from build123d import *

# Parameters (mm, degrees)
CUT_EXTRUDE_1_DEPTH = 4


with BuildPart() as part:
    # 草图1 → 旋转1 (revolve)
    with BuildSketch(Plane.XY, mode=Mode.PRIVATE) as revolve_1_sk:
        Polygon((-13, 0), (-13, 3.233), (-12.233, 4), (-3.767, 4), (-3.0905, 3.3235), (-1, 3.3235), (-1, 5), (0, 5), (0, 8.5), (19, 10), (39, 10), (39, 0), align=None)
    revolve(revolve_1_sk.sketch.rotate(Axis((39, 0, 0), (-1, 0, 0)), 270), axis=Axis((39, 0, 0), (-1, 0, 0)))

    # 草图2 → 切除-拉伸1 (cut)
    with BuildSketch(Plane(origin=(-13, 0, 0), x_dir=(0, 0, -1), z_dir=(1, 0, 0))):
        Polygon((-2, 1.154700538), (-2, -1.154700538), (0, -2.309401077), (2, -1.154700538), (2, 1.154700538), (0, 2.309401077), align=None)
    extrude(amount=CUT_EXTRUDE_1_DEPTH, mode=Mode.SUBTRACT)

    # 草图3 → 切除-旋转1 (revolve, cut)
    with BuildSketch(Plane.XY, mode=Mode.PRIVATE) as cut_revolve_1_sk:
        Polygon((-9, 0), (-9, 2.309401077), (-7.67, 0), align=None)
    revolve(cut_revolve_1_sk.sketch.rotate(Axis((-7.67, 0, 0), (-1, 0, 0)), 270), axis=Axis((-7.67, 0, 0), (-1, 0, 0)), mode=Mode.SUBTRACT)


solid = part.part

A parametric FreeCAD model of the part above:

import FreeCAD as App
import Part
import Sketcher

V = App.Vector
Q = App.Units.Quantity

doc = App.newDocument("Part")
params = doc.addObject("Spreadsheet::Sheet", "Params")
for row, (alias, value) in enumerate([
    ("sketch1_width", "52 mm"),
    ("sketch1_width2", "20 mm"),
    ("sketch1_width3", "1 mm"),
    ("sketch1_height", "10 mm"),
    ("sketch1_height2", "3.5 mm"),
    ("revolution_angle", "360 deg"),
    ("pocket1_length", "4 mm"),
    ("sketch3_width", "1.33 mm"),
    ("groove_angle", "360 deg"),
], start=1):
    params.set(f"A{row}", alias)
    params.set(f"B{row}", "=" + value)
    params.setAlias(f"B{row}", alias)

body = doc.addObject("PartDesign::Body", "Body")

# Sketch on XY plane
sketch1 = doc.addObject("Sketcher::SketchObject", "Sketch")
body.addObject(sketch1)
sketch1.AttachmentSupport = (doc.XY_Plane, [""])
sketch1.MapMode = "FlatFace"
sketch1.addGeometry([
    Part.LineSegment(V(-13, 3.2, 0), V(-13, 0, 0)),  # 0
    Part.LineSegment(V(-13, 0, 0), V(39, 0, 0)),  # 1
    Part.LineSegment(V(39, 0, 0), V(39, 10, 0)),  # 2
    Part.LineSegment(V(39, 10, 0), V(19, 10, 0)),  # 3
    Part.LineSegment(V(19, 10, 0), V(0, 8.5, 0)),  # 4
    Part.LineSegment(V(0, 8.5, 0), V(0, 5, 0)),  # 5
    Part.LineSegment(V(0, 5, 0), V(-1, 5, 0)),  # 6
    Part.LineSegment(V(-1, 5, 0), V(-1, 3.3, 0)),  # 7
    Part.LineSegment(V(-1, 3.3, 0), V(-3.1, 3.3, 0)),  # 8
    Part.LineSegment(V(-3.1, 3.3, 0), V(-3.8, 4, 0)),  # 9
    Part.LineSegment(V(-3.8, 4, 0), V(-12.2, 4, 0)),  # 10
    Part.LineSegment(V(-12.2, 4, 0), V(-13, 3.2, 0)),  # 11
], False)
sketch1.addConstraint([
    Sketcher.Constraint("Coincident", 0, 2, 1, 1),
    Sketcher.Constraint("Coincident", 1, 2, 2, 1),
    Sketcher.Constraint("Coincident", 2, 2, 3, 1),
    Sketcher.Constraint("Coincident", 3, 2, 4, 1),
    Sketcher.Constraint("Coincident", 4, 2, 5, 1),
    Sketcher.Constraint("Coincident", 5, 2, 6, 1),
    Sketcher.Constraint("Coincident", 6, 2, 7, 1),
    Sketcher.Constraint("Coincident", 7, 2, 8, 1),
    Sketcher.Constraint("Coincident", 8, 2, 9, 1),
    Sketcher.Constraint("Coincident", 9, 2, 10, 1),
    Sketcher.Constraint("Coincident", 10, 2, 11, 1),
    Sketcher.Constraint("Coincident", 11, 2, 0, 1),
    Sketcher.Constraint("Vertical", 0),
    Sketcher.Constraint("Horizontal", 1),
    Sketcher.Constraint("Vertical", 2),
    Sketcher.Constraint("Horizontal", 3),
    Sketcher.Constraint("Vertical", 5),
    Sketcher.Constraint("Horizontal", 6),
    Sketcher.Constraint("Vertical", 7),
    Sketcher.Constraint("Horizontal", 8),
    Sketcher.Constraint("Horizontal", 10),
    Sketcher.Constraint("PointOnObject", 0, 2, -1),
    Sketcher.Constraint("PointOnObject", 4, 2, -2),
    Sketcher.Constraint("Perpendicular", 9, 11),
    Sketcher.Constraint("DistanceX", 1, 1, 1, 2, Q("52 mm")),
    Sketcher.Constraint("DistanceX", 3, 2, 3, 1, Q("20 mm")),
    Sketcher.Constraint("DistanceX", 6, 2, 6, 1, Q("1 mm")),
    Sketcher.Constraint("DistanceY", 2, 1, 2, 2, Q("10 mm")),
    Sketcher.Constraint("Angle", 9, Q("135 deg")),
    Sketcher.Constraint("DistanceY", 5, 2, 5, 1, Q("3.5 mm")),
    Sketcher.Constraint("DistanceX", 0, 2, -1, 1, Q("13 mm")),
    Sketcher.Constraint("DistanceY", -1, 1, 5, 2, Q("5 mm")),
    Sketcher.Constraint("DistanceY", -1, 1, 9, 2, Q("4 mm")),
    Sketcher.Constraint("DistanceX", 10, 2, 10, 1, Q("8.466 mm")),
    Sketcher.Constraint("DistanceY", 0, 2, 0, 1, Q("3.233 mm")),
    Sketcher.Constraint("DistanceX", 8, 2, 8, 1, Q("2.0905 mm")),
])
sketch1.setExpression("Constraints[24]", "Params.sketch1_width")
sketch1.setExpression("Constraints[25]", "Params.sketch1_width2")
sketch1.setExpression("Constraints[26]", "Params.sketch1_width3")
sketch1.setExpression("Constraints[27]", "Params.sketch1_height")
sketch1.setExpression("Constraints[29]", "Params.sketch1_height2")
revolution = doc.addObject("PartDesign::Revolution", "Revolution")
body.addObject(revolution)
revolution.Profile = sketch1
revolution.ReferenceAxis = (sketch1, ["H_Axis"])
revolution.setExpression("Angle", "Params.revolution_angle")

# Sketch on YZ plane
sketch2 = doc.addObject("Sketcher::SketchObject", "Sketch001")
body.addObject(sketch2)
sketch2.AttachmentSupport = (doc.YZ_Plane, [""])
sketch2.MapMode = "FlatFace"
sketch2.AttachmentOffset = App.Placement(V(0, 0, -13), App.Rotation())
sketch2.addGeometry([
    Part.LineSegment(V(1.2, 2, 0), V(-1.2, 2, 0)),  # 0
    Part.LineSegment(V(-1.2, 2, 0), V(-2.3, 0, 0)),  # 1
    Part.LineSegment(V(-2.3, 0, 0), V(-1.2, -2, 0)),  # 2
    Part.LineSegment(V(-1.2, -2, 0), V(1.2, -2, 0)),  # 3
    Part.LineSegment(V(1.2, -2, 0), V(2.3, 0, 0)),  # 4
    Part.LineSegment(V(2.3, 0, 0), V(1.2, 2, 0)),  # 5
], False)
sketch2.addConstraint([
    Sketcher.Constraint("Coincident", 0, 2, 1, 1),
    Sketcher.Constraint("Coincident", 1, 2, 2, 1),
    Sketcher.Constraint("Coincident", 2, 2, 3, 1),
    Sketcher.Constraint("Coincident", 3, 2, 4, 1),
    Sketcher.Constraint("Coincident", 4, 2, 5, 1),
    Sketcher.Constraint("Coincident", 5, 2, 0, 1),
    Sketcher.Constraint("Horizontal", 0),
    Sketcher.Constraint("Horizontal", 3),
    Sketcher.Constraint("Symmetric", 0, 2, 3, 2, -1, 1),
    Sketcher.Constraint("Symmetric", 1, 2, 4, 2, -1, 1),
    Sketcher.Constraint("PointOnObject", 1, 2, -1),
    Sketcher.Constraint("Parallel", 2, 5),
    Sketcher.Constraint("Vertical", 0, 2, 2, 2),
    Sketcher.Constraint("Angle", 1, Q("-120 deg")),
    Sketcher.Constraint("DistanceY", -1, 1, 0, 2, Q("2 mm")),
    Sketcher.Constraint("DistanceX", 0, 2, 0, 1, Q("2.309401 mm")),
])
pocket1 = doc.addObject("PartDesign::Pocket", "Pocket")
body.addObject(pocket1)
pocket1.Profile = sketch2
pocket1.setExpression("Length", "Params.pocket1_length")
pocket1.Reversed = True

# Sketch on XY plane
sketch3 = doc.addObject("Sketcher::SketchObject", "Sketch002")
body.addObject(sketch3)
sketch3.AttachmentSupport = (doc.XY_Plane, [""])
sketch3.MapMode = "FlatFace"
sketch3.addGeometry([
    Part.LineSegment(V(-9, 2.3, 0), V(-9, 0, 0)),
    Part.LineSegment(V(-9, 0, 0), V(-7.7, 0, 0)),
    Part.LineSegment(V(-7.7, 0, 0), V(-9, 2.3, 0)),
], False)
sketch3.addConstraint([
    Sketcher.Constraint("Coincident", 0, 2, 1, 1),
    Sketcher.Constraint("Coincident", 1, 2, 2, 1),
    Sketcher.Constraint("Coincident", 2, 2, 0, 1),
    Sketcher.Constraint("Vertical", 0),
    Sketcher.Constraint("Horizontal", 1),
    Sketcher.Constraint("PointOnObject", 0, 2, -1),
    Sketcher.Constraint("DistanceX", 0, 2, -1, 1, Q("9 mm")),
    Sketcher.Constraint("DistanceX", 1, 1, 1, 2, Q("1.33 mm")),
    Sketcher.Constraint("Distance", 2, Q("2.665002 mm")),
])
sketch3.setExpression("Constraints[7]", "Params.sketch3_width")
groove = doc.addObject("PartDesign::Groove", "Groove")
body.addObject(groove)
groove.Profile = sketch3
groove.ReferenceAxis = (sketch3, ["H_Axis"])
groove.setExpression("Angle", "Params.groove_angle")

doc.recompute()
